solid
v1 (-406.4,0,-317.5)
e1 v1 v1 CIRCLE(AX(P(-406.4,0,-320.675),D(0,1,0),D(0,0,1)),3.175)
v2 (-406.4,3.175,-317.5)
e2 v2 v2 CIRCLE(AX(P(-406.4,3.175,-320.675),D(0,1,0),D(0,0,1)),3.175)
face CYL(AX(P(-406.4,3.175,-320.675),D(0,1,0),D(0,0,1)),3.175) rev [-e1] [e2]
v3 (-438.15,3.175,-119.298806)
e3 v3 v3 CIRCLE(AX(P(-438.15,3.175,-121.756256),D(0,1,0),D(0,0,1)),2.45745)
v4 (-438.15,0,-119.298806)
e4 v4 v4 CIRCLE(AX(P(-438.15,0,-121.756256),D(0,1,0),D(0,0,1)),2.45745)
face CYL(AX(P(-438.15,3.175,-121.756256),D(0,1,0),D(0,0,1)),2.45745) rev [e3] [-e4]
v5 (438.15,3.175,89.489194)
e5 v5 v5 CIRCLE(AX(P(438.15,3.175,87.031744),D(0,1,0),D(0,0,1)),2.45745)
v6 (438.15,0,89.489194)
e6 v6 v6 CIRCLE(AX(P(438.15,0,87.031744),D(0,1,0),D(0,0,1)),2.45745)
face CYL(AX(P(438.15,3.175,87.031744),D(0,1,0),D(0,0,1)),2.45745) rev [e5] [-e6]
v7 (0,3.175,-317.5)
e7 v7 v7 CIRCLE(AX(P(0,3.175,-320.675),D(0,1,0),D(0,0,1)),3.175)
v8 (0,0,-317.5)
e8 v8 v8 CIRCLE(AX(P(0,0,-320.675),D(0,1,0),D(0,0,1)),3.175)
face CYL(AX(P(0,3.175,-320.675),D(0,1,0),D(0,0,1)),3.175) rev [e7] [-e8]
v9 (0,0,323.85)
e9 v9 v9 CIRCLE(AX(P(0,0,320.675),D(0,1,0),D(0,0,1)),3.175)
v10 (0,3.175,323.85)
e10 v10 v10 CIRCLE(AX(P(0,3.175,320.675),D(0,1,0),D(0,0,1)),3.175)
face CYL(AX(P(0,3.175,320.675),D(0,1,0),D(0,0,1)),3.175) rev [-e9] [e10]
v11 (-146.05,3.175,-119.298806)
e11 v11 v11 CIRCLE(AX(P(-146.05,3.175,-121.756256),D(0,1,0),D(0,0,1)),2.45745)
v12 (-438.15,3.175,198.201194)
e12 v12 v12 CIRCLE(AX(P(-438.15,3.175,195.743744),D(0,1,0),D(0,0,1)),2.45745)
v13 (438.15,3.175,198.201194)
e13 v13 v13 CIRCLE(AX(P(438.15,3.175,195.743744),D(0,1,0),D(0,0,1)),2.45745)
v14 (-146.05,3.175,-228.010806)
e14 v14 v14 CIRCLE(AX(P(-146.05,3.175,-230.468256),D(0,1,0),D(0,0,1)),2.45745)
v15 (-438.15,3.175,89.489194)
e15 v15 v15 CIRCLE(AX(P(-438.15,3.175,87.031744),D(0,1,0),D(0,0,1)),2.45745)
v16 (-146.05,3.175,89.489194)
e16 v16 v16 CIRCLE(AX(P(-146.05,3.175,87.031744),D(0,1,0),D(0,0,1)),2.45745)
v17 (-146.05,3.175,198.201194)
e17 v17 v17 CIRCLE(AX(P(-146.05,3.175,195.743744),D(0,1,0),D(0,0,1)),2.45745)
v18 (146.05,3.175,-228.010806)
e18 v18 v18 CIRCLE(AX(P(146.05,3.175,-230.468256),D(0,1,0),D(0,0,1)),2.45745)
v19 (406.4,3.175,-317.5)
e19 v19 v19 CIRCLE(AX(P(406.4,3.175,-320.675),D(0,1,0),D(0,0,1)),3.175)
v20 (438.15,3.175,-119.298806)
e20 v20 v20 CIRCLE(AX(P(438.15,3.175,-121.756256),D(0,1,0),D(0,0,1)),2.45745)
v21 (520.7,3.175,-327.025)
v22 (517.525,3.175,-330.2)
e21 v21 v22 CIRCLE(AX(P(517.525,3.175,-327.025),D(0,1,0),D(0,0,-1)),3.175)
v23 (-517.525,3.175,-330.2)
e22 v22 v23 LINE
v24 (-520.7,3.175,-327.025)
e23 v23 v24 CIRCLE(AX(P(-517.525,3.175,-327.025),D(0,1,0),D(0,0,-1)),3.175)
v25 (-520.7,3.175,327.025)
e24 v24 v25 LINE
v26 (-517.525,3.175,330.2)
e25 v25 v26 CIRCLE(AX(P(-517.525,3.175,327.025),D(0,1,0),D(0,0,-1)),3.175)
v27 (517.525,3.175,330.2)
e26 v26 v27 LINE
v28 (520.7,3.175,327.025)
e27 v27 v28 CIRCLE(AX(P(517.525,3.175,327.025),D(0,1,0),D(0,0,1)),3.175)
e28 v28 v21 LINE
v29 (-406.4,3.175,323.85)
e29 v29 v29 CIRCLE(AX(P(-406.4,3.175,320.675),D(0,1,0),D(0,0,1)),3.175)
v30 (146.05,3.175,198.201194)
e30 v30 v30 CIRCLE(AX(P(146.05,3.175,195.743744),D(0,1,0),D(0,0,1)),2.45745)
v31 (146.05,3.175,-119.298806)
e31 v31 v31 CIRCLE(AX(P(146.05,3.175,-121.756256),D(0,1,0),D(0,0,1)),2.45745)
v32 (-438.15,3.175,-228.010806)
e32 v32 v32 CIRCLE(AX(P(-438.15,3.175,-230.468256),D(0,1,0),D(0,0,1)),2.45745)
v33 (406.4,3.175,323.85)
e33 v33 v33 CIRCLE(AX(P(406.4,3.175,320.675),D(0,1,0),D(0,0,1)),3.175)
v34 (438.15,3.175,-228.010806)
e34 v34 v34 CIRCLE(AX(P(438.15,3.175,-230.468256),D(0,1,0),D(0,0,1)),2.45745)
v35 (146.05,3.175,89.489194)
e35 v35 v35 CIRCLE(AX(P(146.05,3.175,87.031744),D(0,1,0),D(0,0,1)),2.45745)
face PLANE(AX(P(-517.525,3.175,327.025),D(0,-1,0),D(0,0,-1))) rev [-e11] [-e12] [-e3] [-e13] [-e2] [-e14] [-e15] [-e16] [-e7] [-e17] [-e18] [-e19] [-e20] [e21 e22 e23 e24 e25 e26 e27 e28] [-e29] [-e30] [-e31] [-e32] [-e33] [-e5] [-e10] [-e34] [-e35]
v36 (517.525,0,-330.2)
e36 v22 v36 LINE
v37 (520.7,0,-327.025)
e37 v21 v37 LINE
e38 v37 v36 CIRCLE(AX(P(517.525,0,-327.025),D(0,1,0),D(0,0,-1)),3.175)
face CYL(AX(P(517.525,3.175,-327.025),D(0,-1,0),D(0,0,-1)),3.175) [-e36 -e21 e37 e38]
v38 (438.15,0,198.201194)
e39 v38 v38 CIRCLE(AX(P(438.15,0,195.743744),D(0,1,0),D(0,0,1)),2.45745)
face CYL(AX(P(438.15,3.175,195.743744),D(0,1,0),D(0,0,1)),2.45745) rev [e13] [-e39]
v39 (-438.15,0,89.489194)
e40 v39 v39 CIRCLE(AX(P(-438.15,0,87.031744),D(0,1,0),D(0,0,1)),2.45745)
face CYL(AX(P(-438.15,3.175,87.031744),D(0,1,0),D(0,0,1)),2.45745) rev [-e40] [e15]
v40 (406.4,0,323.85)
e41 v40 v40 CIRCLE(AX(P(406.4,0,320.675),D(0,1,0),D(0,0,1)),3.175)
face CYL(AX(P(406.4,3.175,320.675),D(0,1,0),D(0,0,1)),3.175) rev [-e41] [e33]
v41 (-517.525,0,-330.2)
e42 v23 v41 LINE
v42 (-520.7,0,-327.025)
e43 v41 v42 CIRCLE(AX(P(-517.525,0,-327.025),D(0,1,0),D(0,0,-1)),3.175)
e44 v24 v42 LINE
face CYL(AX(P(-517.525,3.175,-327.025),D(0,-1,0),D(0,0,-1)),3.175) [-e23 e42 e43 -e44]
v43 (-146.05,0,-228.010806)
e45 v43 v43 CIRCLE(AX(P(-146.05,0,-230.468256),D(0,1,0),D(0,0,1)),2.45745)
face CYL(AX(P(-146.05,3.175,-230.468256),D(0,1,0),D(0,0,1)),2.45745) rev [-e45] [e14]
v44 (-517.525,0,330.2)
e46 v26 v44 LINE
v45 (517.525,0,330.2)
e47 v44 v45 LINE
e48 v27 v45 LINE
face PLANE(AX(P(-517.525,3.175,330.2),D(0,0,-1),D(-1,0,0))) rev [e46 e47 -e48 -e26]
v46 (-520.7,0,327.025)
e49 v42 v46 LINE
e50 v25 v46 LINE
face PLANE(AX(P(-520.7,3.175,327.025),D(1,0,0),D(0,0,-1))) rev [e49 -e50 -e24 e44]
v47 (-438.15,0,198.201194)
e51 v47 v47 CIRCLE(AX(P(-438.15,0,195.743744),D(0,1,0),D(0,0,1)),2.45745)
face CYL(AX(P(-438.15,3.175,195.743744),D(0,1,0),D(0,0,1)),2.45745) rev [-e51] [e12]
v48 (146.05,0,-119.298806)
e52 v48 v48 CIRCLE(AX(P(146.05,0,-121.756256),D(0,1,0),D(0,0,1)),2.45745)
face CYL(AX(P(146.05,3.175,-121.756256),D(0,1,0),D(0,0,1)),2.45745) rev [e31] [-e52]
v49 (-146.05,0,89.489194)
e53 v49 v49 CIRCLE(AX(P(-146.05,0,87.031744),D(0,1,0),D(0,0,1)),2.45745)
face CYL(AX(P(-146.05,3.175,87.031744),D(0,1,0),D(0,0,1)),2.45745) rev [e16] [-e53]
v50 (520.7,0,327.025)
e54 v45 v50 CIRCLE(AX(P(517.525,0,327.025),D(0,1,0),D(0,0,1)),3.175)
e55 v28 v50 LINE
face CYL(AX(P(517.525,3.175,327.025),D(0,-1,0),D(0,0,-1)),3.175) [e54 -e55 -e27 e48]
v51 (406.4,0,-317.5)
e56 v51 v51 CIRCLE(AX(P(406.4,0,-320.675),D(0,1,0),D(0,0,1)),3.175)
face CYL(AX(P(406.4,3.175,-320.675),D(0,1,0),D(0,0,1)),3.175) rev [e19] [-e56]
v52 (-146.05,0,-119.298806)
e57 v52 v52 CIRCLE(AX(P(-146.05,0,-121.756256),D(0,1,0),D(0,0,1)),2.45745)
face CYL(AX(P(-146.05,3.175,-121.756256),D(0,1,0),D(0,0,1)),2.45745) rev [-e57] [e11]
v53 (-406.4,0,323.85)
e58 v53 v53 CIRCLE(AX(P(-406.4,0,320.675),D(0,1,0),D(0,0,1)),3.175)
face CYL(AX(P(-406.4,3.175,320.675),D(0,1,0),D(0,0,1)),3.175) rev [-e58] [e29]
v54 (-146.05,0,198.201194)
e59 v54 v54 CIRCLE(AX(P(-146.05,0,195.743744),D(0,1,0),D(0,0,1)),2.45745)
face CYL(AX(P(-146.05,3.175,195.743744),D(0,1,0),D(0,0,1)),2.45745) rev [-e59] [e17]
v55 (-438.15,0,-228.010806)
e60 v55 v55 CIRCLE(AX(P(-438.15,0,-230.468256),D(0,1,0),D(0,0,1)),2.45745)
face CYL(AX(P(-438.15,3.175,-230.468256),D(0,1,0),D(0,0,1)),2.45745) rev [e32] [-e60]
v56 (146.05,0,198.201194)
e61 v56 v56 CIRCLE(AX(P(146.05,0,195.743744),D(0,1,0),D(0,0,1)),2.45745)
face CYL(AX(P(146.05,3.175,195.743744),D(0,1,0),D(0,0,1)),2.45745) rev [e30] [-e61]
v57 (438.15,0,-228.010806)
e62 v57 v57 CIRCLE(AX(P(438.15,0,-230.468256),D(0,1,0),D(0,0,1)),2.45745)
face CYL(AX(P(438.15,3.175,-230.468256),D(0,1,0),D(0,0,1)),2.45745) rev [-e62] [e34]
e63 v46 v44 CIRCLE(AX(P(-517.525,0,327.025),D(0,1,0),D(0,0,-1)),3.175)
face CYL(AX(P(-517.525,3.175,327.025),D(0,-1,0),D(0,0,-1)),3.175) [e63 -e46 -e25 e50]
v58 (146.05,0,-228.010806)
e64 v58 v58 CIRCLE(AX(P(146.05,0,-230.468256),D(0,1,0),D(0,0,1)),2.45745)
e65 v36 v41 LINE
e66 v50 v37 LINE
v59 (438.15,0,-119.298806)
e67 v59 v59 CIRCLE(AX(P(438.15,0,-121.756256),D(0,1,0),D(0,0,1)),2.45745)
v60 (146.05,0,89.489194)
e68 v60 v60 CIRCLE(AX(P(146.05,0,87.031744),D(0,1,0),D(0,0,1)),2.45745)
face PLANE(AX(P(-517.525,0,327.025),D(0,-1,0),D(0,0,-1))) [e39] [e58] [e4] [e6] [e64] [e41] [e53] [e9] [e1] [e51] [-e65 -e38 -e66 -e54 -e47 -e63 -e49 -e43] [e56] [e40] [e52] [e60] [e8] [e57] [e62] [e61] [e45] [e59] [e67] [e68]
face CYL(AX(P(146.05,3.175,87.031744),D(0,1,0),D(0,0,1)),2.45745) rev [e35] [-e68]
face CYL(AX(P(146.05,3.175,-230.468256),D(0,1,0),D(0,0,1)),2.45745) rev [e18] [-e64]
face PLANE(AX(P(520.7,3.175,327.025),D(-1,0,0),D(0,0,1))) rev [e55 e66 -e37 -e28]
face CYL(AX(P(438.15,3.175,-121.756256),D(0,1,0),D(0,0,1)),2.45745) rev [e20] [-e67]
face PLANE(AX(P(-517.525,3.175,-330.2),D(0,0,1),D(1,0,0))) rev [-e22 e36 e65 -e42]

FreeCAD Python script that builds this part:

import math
import FreeCAD as App
import Part
import Sketcher

V = App.Vector
Q = App.Units.Quantity

doc = App.newDocument("Part")
body = doc.addObject("PartDesign::Body", "Body")

sketch1 = doc.addObject("Sketcher::SketchObject", "Sketch")
body.addObject(sketch1)
sketch1.AttachmentSupport = (doc.XZ_Plane, [""])
sketch1.MapMode = "FlatFace"
sketch1.addGeometry([
    Part.LineSegment(V(-517.525, 330.2, 0), V(517.525, 330.2, 0)),
    Part.ArcOfCircle(Part.Circle(V(517.525, 327.025, 0), V(0, 0, 1), 3.175), math.radians(0), math.radians(90)),
    Part.LineSegment(V(520.7, 327.025, 0), V(520.7, -327.025, 0)),
    Part.ArcOfCircle(Part.Circle(V(517.525, -327.025, 0), V(0, 0, 1), 3.175), math.radians(-90), math.radians(0)),
    Part.LineSegment(V(517.525, -330.2, 0), V(-517.525, -330.2, 0)),
    Part.ArcOfCircle(Part.Circle(V(-517.525, -327.025, 0), V(0, 0, 1), 3.175), math.radians(-180), math.radians(-90)),
    Part.LineSegment(V(-520.7, -327.025, 0), V(-520.7, 327.025, 0)),
    Part.ArcOfCircle(Part.Circle(V(-517.525, 327.025, 0), V(0, 0, 1), 3.175), math.radians(90), math.radians(180)),
], False)
sketch1.addConstraint([
    Sketcher.Constraint("Tangent", 0, 2, 1, 2),
    Sketcher.Constraint("Tangent", 1, 1, 2, 1),
    Sketcher.Constraint("Tangent", 2, 2, 3, 2),
    Sketcher.Constraint("Tangent", 3, 1, 4, 1),
    Sketcher.Constraint("Tangent", 4, 2, 5, 2),
    Sketcher.Constraint("Tangent", 5, 1, 6, 1),
    Sketcher.Constraint("Tangent", 6, 2, 7, 2),
    Sketcher.Constraint("Tangent", 7, 1, 0, 1),
    Sketcher.Constraint("Horizontal", 0),
    Sketcher.Constraint("Vertical", 2),
    Sketcher.Constraint("Horizontal", 4),
    Sketcher.Constraint("Vertical", 6),
    Sketcher.Constraint("Equal", 1, 3),
    Sketcher.Constraint("Equal", 3, 5),
    Sketcher.Constraint("Equal", 5, 7),
    Sketcher.Constraint("Symmetric", 1, 3, 5, 3, -1, 1),
    Sketcher.Constraint("DistanceY", -1, 1, 0, 2, Q("13 in")),
    Sketcher.Constraint("Radius", 1, Q("0.125 in")),
    Sketcher.Constraint("DistanceX", 0, 1, 0, 2, Q("40.75 in")),
])
pad1 = doc.addObject("PartDesign::Pad", "Pad")
body.addObject(pad1)
pad1.Profile = sketch1
pad1.Length = Q("0.125 in")
pad1.Reversed = True

sketch2 = doc.addObject("Sketcher::SketchObject", "Sketch001")
body.addObject(sketch2)
sketch2.AttachmentSupport = (doc.XZ_Plane, [""])
sketch2.MapMode = "FlatFace"
sketch2.AttachmentOffset = App.Placement(V(0, 0, -0.125 * 25.4), App.Rotation())
sketch2.addGeometry([
    Part.Circle(V(-406.4, -320.675, 0), V(0, 0, 1), 3.175),
    Part.Circle(V(0, -320.675, 0), V(0, 0, 1), 3.175),
    Part.Circle(V(406.4, -320.675, 0), V(0, 0, 1), 3.175),
    Part.Circle(V(406.4, 320.675, 0), V(0, 0, 1), 3.175),
    Part.Circle(V(0, 320.675, 0), V(0, 0, 1), 3.175),
    Part.Circle(V(-406.4, 320.675, 0), V(0, 0, 1), 3.175),
], False)
sketch2.addConstraint([
    Sketcher.Constraint("Equal", 0, 1),
    Sketcher.Constraint("Equal", 1, 2),
    Sketcher.Constraint("Equal", 2, 3),
    Sketcher.Constraint("Equal", 3, 4),
    Sketcher.Constraint("Equal", 4, 5),
    Sketcher.Constraint("Symmetric", 0, 3, 3, 3, -1, 1),
    Sketcher.Constraint("Symmetric", 1, 3, 4, 3, -1, 1),
    Sketcher.Constraint("Symmetric", 2, 3, 5, 3, -1, 1),
    Sketcher.Constraint("Symmetric", 0, 3, 2, 3, -2),
    Sketcher.Constraint("PointOnObject", 1, 3, -2),
    Sketcher.Constraint("Horizontal", 0, 3, 1, 3),
    Sketcher.Constraint("Diameter", 0, Q("0.25 in")),
    Sketcher.Constraint("DistanceX", 0, 3, -1, 1, Q("16 in")),
    Sketcher.Constraint("DistanceY", 2, 3, 3, 3, Q("25.25 in")),
])
doc.recompute()
hole = doc.addObject("PartDesign::Hole", "Hole")
body.addObject(hole)
hole.Profile = sketch2
hole.ThreadType = "None"
hole.Diameter = Q("0.25 in")
hole.DepthType = "ThroughAll"
hole.Reversed = True

sketch3 = doc.addObject("Sketcher::SketchObject", "Sketch002")
body.addObject(sketch3)
sketch3.AttachmentSupport = (doc.XZ_Plane, [""])
sketch3.MapMode = "FlatFace"
sketch3.AttachmentOffset = App.Placement(V(0, 0, -0.125 * 25.4), App.Rotation())
sketch3.addGeometry([
    Part.Circle(V(-438.15, -230.468256, 0), V(0, 0, 1), 2.45745),
    Part.Circle(V(-438.15, -121.756256, 0), V(0, 0, 1), 2.45745),
    Part.Circle(V(-146.05, -121.756256, 0), V(0, 0, 1), 2.45745),
    Part.Circle(V(-146.05, -230.468256, 0), V(0, 0, 1), 2.45745),
    Part.Circle(V(146.05, -121.756256, 0), V(0, 0, 1), 2.45745),
    Part.Circle(V(146.05, -230.468256, 0), V(0, 0, 1), 2.45745),
    Part.Circle(V(438.15, -230.468256, 0), V(0, 0, 1), 2.45745),
    Part.Circle(V(438.15, -121.756256, 0), V(0, 0, 1), 2.45745),
    Part.Circle(V(-438.15, 87.031744, 0), V(0, 0, 1), 2.45745),
    Part.Circle(V(-438.15, 195.743744, 0), V(0, 0, 1), 2.45745),
    Part.Circle(V(-146.05, 195.743744, 0), V(0, 0, 1), 2.45745),
    Part.Circle(V(-146.05, 87.031744, 0), V(0, 0, 1), 2.45745),
    Part.Circle(V(146.05, 87.031744, 0), V(0, 0, 1), 2.45745),
    Part.Circle(V(146.05, 195.743744, 0), V(0, 0, 1), 2.45745),
    Part.Circle(V(438.15, 87.031744, 0), V(0, 0, 1), 2.45745),
    Part.Circle(V(438.15, 195.743744, 0), V(0, 0, 1), 2.45745),
], False)
sketch3.addConstraint([
    Sketcher.Constraint("Equal", 0, 1),
    Sketcher.Constraint("Equal", 1, 2),
    Sketcher.Constraint("Equal", 2, 3),
    Sketcher.Constraint("Equal", 3, 4),
    Sketcher.Constraint("Equal", 4, 5),
    Sketcher.Constraint("Equal", 5, 6),
    Sketcher.Constraint("Equal", 6, 7),
    Sketcher.Constraint("Equal", 7, 8),
    Sketcher.Constraint("Equal", 8, 9),
    Sketcher.Constraint("Equal", 9, 10),
    Sketcher.Constraint("Equal", 10, 11),
    Sketcher.Constraint("Equal", 11, 12),
    Sketcher.Constraint("Equal", 12, 13),
    Sketcher.Constraint("Equal", 13, 14),
    Sketcher.Constraint("Equal", 14, 15),
    Sketcher.Constraint("Symmetric", 2, 3, 4, 3, -2),
    Sketcher.Constraint("Symmetric", 3, 3, 5, 3, -2),
    Sketcher.Constraint("Symmetric", 0, 3, 6, 3, -2),
    Sketcher.Constraint("Symmetric", 1, 3, 7, 3, -2),
    Sketcher.Constraint("Symmetric", 11, 3, 12, 3, -2),
    Sketcher.Constraint("Symmetric", 10, 3, 13, 3, -2),
    Sketcher.Constraint("Symmetric", 8, 3, 14, 3, -2),
    Sketcher.Constraint("Symmetric", 9, 3, 15, 3, -2),
    Sketcher.Constraint("Horizontal", 1, 3, 2, 3),
    Sketcher.Constraint("Horizontal", 0, 3, 3, 3),
    Sketcher.Constraint("Horizontal", 9, 3, 10, 3),
    Sketcher.Constraint("Horizontal", 8, 3, 11, 3),
    Sketcher.Constraint("Vertical", 0, 3, 1, 3),
    Sketcher.Constraint("Vertical", 2, 3, 3, 3),
    Sketcher.Constraint("Vertical", 1, 3, 8, 3),
    Sketcher.Constraint("Vertical", 8, 3, 9, 3),
    Sketcher.Constraint("Vertical", 3, 3, 10, 3),
    Sketcher.Constraint("Vertical", 10, 3, 11, 3),
    Sketcher.Constraint("DistanceX", 1, 3, 4, 3, Q("23 in")),
    Sketcher.Constraint("Diameter", 0, Q("0.1935 in")),
    Sketcher.Constraint("DistanceX", 1, 3, 2, 3, Q("11.5 in")),
    Sketcher.Constraint("DistanceY", 0, 3, 8, 3, Q("12.5 in")),
    Sketcher.Constraint("DistanceY", 1, 3, 9, 3, Q("12.5 in")),
    Sketcher.Constraint("DistanceY", 0, 3, 1, 3, Q("4.28 in")),
    Sketcher.Constraint("DistanceY", 0, 3, -1, 1, 230.468256),
])
doc.recompute()
hole2 = doc.addObject("PartDesign::Hole", "Hole001")
body.addObject(hole2)
hole2.Profile = sketch3
hole2.ThreadType = "None"
hole2.Diameter = Q("0.1935 in")
hole2.DepthType = "ThroughAll"
hole2.Reversed = True

doc.recompute()
